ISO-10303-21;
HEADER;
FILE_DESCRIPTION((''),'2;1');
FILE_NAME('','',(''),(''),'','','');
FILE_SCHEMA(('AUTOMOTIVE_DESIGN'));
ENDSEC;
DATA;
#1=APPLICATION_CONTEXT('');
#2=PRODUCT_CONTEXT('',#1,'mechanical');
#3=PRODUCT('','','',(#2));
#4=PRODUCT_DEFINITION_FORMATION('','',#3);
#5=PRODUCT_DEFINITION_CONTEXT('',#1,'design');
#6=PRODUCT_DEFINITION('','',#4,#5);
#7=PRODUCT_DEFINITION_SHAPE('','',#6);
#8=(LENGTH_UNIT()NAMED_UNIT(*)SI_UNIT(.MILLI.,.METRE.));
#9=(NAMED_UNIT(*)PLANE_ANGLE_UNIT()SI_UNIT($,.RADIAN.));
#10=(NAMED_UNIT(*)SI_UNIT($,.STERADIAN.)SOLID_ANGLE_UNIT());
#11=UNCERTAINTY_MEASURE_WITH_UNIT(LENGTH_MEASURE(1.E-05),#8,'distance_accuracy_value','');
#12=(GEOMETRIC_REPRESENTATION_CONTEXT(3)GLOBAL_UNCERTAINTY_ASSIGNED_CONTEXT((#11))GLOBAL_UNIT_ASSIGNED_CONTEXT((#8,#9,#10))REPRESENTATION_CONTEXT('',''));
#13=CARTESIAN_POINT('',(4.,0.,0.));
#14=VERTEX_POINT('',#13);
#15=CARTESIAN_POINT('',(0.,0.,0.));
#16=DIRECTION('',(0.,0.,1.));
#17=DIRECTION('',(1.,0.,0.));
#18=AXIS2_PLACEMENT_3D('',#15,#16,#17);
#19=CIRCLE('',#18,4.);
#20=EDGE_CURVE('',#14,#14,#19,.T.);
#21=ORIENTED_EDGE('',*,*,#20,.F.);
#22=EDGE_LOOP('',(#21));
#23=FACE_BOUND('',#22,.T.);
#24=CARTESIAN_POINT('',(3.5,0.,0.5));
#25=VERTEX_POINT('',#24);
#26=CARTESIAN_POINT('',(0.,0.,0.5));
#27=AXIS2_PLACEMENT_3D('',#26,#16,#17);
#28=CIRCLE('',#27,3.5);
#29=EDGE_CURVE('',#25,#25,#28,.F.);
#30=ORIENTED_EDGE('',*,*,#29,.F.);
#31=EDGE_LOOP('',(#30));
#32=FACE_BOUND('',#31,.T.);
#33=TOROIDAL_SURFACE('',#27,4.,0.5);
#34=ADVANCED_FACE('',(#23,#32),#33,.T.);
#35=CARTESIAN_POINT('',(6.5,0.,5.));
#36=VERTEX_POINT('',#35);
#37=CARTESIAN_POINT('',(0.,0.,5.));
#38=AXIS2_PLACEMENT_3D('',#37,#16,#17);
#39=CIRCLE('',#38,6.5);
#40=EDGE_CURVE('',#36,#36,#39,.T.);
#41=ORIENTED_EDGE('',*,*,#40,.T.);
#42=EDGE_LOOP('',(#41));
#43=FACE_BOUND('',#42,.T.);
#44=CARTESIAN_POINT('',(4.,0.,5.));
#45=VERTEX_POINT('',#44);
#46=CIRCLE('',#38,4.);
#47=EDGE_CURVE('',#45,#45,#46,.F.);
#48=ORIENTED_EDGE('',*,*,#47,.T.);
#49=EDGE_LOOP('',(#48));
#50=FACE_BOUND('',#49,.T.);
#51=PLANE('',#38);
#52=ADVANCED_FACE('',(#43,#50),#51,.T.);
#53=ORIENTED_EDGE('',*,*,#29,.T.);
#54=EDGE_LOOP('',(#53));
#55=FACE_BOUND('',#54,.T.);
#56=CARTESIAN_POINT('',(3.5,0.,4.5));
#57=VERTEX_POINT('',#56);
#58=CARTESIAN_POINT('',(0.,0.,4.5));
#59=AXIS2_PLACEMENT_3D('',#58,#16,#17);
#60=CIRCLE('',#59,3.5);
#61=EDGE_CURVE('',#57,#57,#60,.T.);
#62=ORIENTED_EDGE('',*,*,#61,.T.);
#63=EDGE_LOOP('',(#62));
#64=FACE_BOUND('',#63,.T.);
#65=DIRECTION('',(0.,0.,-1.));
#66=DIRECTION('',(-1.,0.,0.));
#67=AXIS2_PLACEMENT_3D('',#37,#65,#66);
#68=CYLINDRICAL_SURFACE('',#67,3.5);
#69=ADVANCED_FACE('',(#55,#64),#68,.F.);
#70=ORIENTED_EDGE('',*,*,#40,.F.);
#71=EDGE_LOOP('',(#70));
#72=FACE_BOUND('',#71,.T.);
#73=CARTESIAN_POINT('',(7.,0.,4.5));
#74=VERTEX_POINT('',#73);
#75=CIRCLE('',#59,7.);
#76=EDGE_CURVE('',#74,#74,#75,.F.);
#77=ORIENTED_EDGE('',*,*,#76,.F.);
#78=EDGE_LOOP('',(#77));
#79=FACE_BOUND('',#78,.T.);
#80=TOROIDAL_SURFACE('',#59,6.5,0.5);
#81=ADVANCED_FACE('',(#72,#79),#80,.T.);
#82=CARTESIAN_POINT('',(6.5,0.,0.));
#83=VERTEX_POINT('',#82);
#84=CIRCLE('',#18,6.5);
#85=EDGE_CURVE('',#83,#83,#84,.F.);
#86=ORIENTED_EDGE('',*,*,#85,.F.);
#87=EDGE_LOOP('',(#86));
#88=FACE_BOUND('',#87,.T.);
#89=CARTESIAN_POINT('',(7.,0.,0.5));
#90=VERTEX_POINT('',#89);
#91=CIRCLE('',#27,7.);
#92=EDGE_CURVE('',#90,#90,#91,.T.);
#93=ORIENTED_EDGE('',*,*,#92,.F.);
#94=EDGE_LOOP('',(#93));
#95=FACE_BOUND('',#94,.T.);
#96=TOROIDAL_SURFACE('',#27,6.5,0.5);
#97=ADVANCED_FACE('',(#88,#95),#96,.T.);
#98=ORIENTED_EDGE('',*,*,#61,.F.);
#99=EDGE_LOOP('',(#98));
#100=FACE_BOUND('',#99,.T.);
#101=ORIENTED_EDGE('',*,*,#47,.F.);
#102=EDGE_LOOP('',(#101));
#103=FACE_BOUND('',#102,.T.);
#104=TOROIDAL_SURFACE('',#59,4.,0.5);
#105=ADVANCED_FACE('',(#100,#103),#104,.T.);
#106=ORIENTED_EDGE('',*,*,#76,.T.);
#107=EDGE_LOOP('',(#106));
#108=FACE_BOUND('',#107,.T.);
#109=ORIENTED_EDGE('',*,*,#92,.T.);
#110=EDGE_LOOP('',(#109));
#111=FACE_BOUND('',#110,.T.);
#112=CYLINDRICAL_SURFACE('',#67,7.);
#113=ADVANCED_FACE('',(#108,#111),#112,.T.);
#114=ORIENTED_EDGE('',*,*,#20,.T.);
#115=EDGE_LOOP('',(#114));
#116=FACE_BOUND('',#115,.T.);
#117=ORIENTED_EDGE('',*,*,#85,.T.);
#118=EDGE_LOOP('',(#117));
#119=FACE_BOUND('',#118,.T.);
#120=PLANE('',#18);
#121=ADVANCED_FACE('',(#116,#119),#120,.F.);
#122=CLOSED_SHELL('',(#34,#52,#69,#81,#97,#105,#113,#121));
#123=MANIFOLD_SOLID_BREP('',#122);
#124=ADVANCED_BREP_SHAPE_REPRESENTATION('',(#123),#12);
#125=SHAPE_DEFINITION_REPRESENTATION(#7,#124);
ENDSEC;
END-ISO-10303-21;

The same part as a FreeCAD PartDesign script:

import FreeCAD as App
import Part
import Sketcher

V = App.Vector


def edges_at(feature, points):
    """Names of the edges that pass closest to the given points."""
    edges = feature.Shape.Edges
    near = lambda p: min(range(len(edges)), key=lambda i: edges[i].distToShape(Part.Vertex(*p))[0])
    return sorted({f"Edge{near(p) + 1}" for p in points})

doc = App.newDocument("Part")
body = doc.addObject("PartDesign::Body", "Body")

# Sketch on XY plane
sketch1 = doc.addObject("Sketcher::SketchObject", "Sketch")
body.addObject(sketch1)
sketch1.AttachmentSupport = (doc.XY_Plane, [""])
sketch1.MapMode = "FlatFace"
sketch1.addGeometry(Part.Circle(V(0, 0, 0), V(0, 0, 1), 7), False)
sketch1.addGeometry(Part.Circle(V(0, 0, 0), V(0, 0, 1), 3.5), False)
sketch1.addConstraint(Sketcher.Constraint("Coincident", 0, 3, -1, 1))
sketch1.addConstraint(Sketcher.Constraint("Coincident", 1, 3, -1, 1))
sketch1.addConstraint(Sketcher.Constraint("Diameter", 0, 14.0))
sketch1.addConstraint(Sketcher.Constraint("Diameter", 1, 7.0))
pad1 = doc.addObject("PartDesign::Pad", "Pad")
body.addObject(pad1)
pad1.Profile = sketch1
pad1.Length = 5
doc.recompute()

fillet = doc.addObject("PartDesign::Fillet", "Fillet")
body.addObject(fillet)
fillet.Base = (pad1, edges_at(pad1, [
    (-7, 0, 0),
    (-7, 0, 5),
    (-3.5, 0, 0),
    (-3.5, 0, 5),
]))
fillet.Radius = 0.5

doc.recompute()
